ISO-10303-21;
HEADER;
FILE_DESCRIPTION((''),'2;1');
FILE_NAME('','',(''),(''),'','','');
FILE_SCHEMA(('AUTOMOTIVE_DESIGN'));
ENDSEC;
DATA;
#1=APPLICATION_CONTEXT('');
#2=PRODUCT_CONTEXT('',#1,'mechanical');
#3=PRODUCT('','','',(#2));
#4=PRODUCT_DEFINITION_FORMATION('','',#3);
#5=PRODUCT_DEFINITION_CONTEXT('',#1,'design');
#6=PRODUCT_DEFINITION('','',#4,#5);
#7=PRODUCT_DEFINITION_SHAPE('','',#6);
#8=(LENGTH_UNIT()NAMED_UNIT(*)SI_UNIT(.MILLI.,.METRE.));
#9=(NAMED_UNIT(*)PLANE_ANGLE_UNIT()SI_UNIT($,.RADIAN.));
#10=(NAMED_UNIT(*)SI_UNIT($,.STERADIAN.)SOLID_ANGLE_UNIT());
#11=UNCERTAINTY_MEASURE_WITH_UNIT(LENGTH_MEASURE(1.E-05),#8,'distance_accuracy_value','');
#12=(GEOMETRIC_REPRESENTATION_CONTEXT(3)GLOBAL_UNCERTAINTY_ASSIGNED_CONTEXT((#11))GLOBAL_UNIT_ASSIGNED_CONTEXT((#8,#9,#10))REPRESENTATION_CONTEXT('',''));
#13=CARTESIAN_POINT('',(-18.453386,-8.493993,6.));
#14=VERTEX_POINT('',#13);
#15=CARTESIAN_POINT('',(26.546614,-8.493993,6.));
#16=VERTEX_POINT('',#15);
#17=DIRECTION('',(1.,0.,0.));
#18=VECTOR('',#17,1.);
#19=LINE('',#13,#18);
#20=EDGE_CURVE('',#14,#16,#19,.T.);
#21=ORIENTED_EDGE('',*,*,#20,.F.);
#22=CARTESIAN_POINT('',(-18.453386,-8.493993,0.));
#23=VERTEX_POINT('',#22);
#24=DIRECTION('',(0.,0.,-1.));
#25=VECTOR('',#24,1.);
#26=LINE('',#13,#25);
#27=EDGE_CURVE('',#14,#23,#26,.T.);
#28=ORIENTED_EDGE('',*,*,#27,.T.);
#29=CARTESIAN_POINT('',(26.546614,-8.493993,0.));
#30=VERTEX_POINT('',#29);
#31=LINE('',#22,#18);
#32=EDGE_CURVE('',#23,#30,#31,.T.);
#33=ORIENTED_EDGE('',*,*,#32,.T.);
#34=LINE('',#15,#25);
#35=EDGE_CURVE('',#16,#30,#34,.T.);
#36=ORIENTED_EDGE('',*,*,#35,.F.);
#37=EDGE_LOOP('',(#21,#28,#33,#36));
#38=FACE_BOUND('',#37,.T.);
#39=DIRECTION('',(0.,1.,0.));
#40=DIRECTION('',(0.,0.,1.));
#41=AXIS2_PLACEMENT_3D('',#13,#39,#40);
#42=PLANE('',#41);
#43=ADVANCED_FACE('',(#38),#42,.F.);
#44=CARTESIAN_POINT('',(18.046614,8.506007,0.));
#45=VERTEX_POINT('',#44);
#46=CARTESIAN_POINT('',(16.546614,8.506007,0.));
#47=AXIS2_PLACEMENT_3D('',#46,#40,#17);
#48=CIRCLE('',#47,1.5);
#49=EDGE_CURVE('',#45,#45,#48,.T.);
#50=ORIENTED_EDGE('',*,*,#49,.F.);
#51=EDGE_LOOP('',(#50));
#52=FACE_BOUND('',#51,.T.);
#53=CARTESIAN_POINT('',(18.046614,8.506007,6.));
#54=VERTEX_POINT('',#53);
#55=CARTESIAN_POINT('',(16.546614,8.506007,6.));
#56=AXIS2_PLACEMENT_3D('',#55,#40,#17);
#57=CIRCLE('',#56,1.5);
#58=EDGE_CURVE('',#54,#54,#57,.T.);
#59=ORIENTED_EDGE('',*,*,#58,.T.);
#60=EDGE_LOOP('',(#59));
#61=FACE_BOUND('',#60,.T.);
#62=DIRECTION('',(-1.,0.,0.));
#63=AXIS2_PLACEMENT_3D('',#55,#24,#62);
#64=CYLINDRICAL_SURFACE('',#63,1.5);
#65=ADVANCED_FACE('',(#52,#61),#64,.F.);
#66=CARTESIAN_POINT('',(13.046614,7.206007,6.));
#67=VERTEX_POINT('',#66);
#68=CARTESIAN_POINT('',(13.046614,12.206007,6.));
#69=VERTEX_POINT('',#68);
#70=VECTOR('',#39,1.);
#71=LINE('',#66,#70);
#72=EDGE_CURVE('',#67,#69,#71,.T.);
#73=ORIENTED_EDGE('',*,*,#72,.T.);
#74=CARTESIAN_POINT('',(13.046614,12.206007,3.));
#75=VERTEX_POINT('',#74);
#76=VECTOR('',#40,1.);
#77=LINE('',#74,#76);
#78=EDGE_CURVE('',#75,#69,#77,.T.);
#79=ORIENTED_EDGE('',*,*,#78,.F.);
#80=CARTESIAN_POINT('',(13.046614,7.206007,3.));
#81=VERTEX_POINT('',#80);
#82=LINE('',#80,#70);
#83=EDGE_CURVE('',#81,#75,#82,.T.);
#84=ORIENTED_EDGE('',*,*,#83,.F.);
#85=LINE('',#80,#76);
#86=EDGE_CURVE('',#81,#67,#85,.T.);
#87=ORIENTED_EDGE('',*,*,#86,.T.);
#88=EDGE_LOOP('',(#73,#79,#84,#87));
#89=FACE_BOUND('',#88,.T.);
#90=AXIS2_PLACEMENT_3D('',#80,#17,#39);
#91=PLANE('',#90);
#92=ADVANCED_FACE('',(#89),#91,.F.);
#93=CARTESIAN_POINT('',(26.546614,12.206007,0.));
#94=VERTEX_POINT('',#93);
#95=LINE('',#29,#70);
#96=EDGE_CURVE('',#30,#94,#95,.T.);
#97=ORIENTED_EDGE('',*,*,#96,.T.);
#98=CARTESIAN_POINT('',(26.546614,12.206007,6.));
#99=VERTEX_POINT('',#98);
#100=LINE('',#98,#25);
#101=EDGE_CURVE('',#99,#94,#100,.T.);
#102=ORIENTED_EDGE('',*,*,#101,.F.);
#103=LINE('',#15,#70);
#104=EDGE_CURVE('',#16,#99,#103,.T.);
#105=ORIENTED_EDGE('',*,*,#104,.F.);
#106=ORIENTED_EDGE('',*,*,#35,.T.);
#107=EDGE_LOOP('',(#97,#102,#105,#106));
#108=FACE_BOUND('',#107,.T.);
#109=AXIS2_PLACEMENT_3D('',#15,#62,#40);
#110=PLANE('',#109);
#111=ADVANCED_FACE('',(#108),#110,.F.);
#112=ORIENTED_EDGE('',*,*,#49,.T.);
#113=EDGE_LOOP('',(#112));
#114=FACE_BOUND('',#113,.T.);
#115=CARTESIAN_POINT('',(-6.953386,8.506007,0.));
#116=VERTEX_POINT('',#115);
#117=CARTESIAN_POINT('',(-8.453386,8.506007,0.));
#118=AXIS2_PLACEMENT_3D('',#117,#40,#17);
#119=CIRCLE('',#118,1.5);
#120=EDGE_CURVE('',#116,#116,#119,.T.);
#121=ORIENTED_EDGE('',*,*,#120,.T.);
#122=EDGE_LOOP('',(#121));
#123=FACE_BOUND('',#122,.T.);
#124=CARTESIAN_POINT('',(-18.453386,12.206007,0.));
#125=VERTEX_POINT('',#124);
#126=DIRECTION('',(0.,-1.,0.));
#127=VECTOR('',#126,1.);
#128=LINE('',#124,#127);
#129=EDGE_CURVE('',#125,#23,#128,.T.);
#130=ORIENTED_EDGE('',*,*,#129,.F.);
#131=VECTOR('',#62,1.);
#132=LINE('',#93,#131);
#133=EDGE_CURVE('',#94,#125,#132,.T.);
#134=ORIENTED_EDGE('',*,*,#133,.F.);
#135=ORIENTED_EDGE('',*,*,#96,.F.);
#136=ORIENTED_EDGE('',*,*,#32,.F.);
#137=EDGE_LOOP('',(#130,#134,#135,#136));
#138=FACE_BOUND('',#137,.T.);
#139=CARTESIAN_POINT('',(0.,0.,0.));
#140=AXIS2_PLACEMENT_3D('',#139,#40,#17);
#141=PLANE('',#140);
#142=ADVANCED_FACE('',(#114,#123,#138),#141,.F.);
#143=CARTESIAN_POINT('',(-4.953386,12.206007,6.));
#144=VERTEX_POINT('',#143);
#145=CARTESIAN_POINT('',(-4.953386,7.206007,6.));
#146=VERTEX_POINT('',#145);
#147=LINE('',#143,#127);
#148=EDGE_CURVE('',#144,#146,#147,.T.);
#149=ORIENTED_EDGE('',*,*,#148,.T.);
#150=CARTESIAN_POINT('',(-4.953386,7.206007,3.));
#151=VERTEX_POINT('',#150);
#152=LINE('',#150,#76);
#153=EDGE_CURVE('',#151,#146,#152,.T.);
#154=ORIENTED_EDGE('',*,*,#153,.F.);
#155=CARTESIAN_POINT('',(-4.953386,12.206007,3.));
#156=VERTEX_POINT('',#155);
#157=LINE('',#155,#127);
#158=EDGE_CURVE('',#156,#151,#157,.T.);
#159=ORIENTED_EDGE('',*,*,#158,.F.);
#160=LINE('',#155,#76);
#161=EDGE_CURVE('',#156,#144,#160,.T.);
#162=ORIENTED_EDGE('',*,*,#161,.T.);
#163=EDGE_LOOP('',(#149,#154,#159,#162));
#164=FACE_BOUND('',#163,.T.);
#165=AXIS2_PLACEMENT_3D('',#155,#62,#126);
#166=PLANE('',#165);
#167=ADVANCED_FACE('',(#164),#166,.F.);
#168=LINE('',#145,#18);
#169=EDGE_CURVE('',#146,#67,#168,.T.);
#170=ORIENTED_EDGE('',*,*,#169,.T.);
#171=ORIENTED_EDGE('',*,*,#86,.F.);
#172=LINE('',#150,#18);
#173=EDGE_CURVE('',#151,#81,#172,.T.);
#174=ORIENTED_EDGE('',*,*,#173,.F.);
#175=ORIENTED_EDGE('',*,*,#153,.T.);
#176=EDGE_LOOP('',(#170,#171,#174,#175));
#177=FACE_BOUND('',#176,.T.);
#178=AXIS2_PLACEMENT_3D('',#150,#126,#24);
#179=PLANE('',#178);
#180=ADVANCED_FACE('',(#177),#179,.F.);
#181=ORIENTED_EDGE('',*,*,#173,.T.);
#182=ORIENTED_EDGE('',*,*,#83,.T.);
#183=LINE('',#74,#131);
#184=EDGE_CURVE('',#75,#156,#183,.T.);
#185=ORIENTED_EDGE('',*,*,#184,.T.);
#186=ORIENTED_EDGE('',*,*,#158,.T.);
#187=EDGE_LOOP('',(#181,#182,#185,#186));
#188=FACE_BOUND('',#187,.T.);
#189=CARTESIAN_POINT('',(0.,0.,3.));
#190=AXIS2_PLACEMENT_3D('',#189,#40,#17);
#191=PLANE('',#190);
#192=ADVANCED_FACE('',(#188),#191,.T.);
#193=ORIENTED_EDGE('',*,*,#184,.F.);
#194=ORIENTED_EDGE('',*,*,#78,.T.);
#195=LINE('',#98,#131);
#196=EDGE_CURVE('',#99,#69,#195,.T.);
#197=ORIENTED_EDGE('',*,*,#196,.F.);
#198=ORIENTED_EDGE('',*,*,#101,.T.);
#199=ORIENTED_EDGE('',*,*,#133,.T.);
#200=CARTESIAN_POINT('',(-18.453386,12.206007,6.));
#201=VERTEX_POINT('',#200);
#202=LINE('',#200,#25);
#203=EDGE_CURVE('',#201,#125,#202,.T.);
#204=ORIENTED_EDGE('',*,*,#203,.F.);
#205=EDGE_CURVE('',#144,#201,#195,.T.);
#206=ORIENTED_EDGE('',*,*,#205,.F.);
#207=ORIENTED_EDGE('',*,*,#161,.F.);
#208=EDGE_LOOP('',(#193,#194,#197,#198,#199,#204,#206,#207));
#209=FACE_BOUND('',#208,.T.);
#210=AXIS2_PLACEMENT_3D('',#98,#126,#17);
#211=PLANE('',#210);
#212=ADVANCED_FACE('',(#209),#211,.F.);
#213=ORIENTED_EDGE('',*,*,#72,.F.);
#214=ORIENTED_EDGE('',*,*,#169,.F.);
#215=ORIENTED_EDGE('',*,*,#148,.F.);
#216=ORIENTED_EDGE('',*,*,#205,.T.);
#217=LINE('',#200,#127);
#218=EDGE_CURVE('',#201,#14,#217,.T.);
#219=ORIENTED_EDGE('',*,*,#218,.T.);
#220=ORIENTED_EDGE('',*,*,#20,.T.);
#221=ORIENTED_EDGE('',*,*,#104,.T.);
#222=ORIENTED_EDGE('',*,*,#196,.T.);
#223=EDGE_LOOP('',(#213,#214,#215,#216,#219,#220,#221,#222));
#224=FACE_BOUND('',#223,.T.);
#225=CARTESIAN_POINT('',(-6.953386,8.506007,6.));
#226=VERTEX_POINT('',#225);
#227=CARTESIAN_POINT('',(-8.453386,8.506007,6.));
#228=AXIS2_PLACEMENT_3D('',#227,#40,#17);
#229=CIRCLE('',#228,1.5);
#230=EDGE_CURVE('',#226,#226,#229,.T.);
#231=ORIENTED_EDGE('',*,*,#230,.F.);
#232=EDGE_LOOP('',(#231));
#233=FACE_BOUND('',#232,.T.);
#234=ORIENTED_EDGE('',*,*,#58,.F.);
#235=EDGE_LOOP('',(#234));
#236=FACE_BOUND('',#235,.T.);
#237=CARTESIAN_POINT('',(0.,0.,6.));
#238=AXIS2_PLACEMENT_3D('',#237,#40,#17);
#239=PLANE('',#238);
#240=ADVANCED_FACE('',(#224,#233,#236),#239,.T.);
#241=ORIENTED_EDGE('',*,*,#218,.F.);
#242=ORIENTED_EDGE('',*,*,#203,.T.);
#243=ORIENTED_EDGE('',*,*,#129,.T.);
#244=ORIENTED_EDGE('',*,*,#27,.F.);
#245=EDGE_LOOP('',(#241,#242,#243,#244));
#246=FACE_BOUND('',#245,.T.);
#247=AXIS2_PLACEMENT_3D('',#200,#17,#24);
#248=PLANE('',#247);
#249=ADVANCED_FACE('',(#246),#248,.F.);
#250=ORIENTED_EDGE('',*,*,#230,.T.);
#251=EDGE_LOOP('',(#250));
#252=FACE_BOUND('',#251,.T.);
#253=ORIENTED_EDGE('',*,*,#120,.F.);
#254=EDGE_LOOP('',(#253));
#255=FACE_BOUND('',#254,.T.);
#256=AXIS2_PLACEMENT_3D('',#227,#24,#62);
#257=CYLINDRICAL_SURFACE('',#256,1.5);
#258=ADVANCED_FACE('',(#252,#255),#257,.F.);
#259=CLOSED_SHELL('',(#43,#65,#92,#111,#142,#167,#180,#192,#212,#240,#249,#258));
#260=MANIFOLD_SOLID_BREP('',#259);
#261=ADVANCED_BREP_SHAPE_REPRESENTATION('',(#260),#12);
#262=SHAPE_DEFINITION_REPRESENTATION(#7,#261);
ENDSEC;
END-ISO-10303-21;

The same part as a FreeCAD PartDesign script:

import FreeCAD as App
import Part
import Sketcher
Q = App.Units.Quantity

doc = App.newDocument("Part")
params = doc.addObject("Spreadsheet::Sheet", "Params")
for row, (alias, value) in enumerate([
    ("sketch1_diameter", "3 mm"),
    ("sketch1_width", "45 mm"),
    ("sketch1_height", "20.7 mm"),
    ("pad1_length", "6 mm"),
    ("sketch2_width", "18 mm"),
    ("sketch2_height", "5 mm"),
    ("pocket1_length", "3 mm"),
], start=1):
    params.set(f"A{row}", alias)
    params.set(f"B{row}", "=" + value)
    params.setAlias(f"B{row}", alias)

body = doc.addObject("PartDesign::Body", "Body")

# Sketch on XY plane
sketch1 = body.newObject("Sketcher::SketchObject", "Sketch")
sketch1.AttachmentSupport = (doc.getObject("XY_Plane"), [""])
sketch1.MapMode = "FlatFace"
sketch1.addGeometry([
    Part.LineSegment(App.Vector(-18.5, 12.2, 0), App.Vector(-18.5, -8.5, 0)),  # 0
    Part.LineSegment(App.Vector(-18.5, -8.5, 0), App.Vector(26.5, -8.5, 0)),  # 1
    Part.LineSegment(App.Vector(26.5, -8.5, 0), App.Vector(26.5, 12.2, 0)),  # 2
    Part.LineSegment(App.Vector(26.5, 12.2, 0), App.Vector(-18.5, 12.2, 0)),  # 3
    Part.Circle(App.Vector(-8.5, 8.5, 0), App.Vector(0, 0, 1), 1.5),  # 4
    Part.Circle(App.Vector(16.5, 8.5, 0), App.Vector(0, 0, 1), 1.5),  # 5
], False)
sketch1.addConstraint([
    Sketcher.Constraint("Coincident", 0, 2, 1, 1),
    Sketcher.Constraint("Coincident", 1, 2, 2, 1),
    Sketcher.Constraint("Coincident", 2, 2, 3, 1),
    Sketcher.Constraint("Coincident", 3, 2, 0, 1),
    Sketcher.Constraint("Vertical", 0),
    Sketcher.Constraint("Horizontal", 1),
    Sketcher.Constraint("Vertical", 2),
    Sketcher.Constraint("Horizontal", 3),
    Sketcher.Constraint("Equal", 4, 5),
    Sketcher.Constraint("Horizontal", 4, 3, 5, 3),
    Sketcher.Constraint("Diameter", 4, Q("3 mm")),
    Sketcher.Constraint("DistanceX", 1, 1, 1, 2, Q("45 mm")),
    Sketcher.Constraint("DistanceY", 0, 2, 0, 1, Q("20.7 mm")),
    Sketcher.Constraint("DistanceX", 4, 3, 5, 3, Q("25 mm")),
    Sketcher.Constraint("DistanceX", 0, 2, 4, 3, Q("10 mm")),
    Sketcher.Constraint("DistanceY", 0, 2, 4, 3, Q("17 mm")),
    Sketcher.Constraint("DistanceX", 4, 3, -1, 1, Q("8.453386 mm")),
    Sketcher.Constraint("DistanceY", -1, 1, 4, 3, Q("8.506007 mm")),
])
sketch1.setExpression("Constraints[10]", "Params.sketch1_diameter")
sketch1.setExpression("Constraints[11]", "Params.sketch1_width")
sketch1.setExpression("Constraints[12]", "Params.sketch1_height")
pad1 = body.newObject("PartDesign::Pad", "Pad")
pad1.Profile = sketch1
pad1.setExpression("Length", "Params.pad1_length")

# Sketch on XY plane
sketch2 = body.newObject("Sketcher::SketchObject", "Sketch001")
sketch2.AttachmentSupport = (doc.getObject("XY_Plane"), [""])
sketch2.MapMode = "FlatFace"
sketch2.AttachmentOffset = App.Placement(App.Vector(0, 0, 6), App.Rotation())
sketch2.addGeometry([
    Part.LineSegment(App.Vector(-5, 12, 0), App.Vector(-5, 7, 0)),
    Part.LineSegment(App.Vector(-5, 7, 0), App.Vector(13, 7, 0)),
    Part.LineSegment(App.Vector(13, 7, 0), App.Vector(13, 12, 0)),
    Part.LineSegment(App.Vector(13, 12, 0), App.Vector(-5, 12, 0)),
], False)
sketch2.addConstraint([
    Sketcher.Constraint("Coincident", 0, 2, 1, 1),
    Sketcher.Constraint("Coincident", 1, 2, 2, 1),
    Sketcher.Constraint("Coincident", 2, 2, 3, 1),
    Sketcher.Constraint("Coincident", 3, 2, 0, 1),
    Sketcher.Constraint("Vertical", 0),
    Sketcher.Constraint("Horizontal", 1),
    Sketcher.Constraint("Vertical", 2),
    Sketcher.Constraint("Horizontal", 3),
    Sketcher.Constraint("DistanceX", 1, 1, 1, 2, Q("18 mm")),
    Sketcher.Constraint("DistanceY", 0, 2, 0, 1, Q("5 mm")),
    Sketcher.Constraint("DistanceX", 0, 2, -1, 1, Q("4.953386 mm")),
    Sketcher.Constraint("DistanceY", -1, 1, 0, 2, Q("7.206007 mm")),
])
sketch2.setExpression("Constraints[8]", "Params.sketch2_width")
sketch2.setExpression("Constraints[9]", "Params.sketch2_height")
pocket1 = body.newObject("PartDesign::Pocket", "Pocket")
pocket1.Profile = sketch2
pocket1.setExpression("Length", "Params.pocket1_length")

doc.recompute()
